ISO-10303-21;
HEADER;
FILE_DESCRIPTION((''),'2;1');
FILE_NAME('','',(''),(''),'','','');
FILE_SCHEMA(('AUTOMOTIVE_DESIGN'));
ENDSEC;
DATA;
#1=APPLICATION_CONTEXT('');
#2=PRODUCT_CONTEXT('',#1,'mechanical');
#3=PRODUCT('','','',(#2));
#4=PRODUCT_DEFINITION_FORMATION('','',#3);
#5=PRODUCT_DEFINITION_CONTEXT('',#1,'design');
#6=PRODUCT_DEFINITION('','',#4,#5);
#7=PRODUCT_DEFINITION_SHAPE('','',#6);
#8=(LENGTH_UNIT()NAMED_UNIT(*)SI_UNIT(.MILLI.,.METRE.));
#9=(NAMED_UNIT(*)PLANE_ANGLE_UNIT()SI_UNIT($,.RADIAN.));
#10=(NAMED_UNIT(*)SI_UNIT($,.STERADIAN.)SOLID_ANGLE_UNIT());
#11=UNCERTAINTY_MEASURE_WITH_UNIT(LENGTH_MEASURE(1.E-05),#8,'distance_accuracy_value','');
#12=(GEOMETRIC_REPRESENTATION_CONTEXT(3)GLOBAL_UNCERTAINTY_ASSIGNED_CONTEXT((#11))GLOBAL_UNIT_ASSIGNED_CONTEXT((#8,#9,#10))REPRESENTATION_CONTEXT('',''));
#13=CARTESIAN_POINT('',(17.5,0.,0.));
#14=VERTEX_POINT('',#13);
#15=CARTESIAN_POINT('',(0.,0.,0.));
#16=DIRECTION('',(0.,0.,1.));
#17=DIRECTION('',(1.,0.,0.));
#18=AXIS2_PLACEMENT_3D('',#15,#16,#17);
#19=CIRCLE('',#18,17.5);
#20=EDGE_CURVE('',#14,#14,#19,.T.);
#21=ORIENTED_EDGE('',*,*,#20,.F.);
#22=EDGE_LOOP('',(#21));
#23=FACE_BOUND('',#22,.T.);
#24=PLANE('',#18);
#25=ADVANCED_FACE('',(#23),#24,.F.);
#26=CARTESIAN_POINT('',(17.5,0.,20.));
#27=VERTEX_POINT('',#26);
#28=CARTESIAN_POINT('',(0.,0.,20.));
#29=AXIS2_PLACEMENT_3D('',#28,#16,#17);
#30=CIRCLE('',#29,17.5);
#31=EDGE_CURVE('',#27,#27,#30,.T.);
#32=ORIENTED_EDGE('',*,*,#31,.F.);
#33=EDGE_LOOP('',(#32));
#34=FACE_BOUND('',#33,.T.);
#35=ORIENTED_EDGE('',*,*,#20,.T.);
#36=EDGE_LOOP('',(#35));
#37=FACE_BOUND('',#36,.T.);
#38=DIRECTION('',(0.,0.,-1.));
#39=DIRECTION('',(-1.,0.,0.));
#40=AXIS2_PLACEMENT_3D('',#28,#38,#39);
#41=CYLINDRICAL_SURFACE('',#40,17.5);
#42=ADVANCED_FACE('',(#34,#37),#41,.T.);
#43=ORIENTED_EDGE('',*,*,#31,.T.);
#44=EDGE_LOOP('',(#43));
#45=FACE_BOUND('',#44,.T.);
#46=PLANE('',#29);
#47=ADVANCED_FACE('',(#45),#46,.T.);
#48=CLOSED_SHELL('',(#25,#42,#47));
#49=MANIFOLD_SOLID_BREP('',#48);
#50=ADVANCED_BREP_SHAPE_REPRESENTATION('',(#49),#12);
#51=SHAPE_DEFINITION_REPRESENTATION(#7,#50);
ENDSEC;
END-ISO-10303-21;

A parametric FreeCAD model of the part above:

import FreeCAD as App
import Part
import Sketcher

V = App.Vector

doc = App.newDocument("Part")
body = doc.addObject("PartDesign::Body", "Body")

# Sketch on XY plane
sketch1 = body.newObject("Sketcher::SketchObject", "Sketch")
sketch1.AttachmentSupport = (doc.getObject("XY_Plane"), [""])
sketch1.MapMode = "FlatFace"
sketch1.addGeometry(Part.Circle(V(0, 0, 0), V(0, 0, 1), 18), False)
sketch1.addConstraint([
    Sketcher.Constraint("Coincident", 0, 3, -1, 1),
    Sketcher.Constraint("Diameter", 0, 35.0),
])
pad1 = body.newObject("PartDesign::Pad", "Pad")
pad1.Profile = sketch1
pad1.Length = 20

doc.recompute()
